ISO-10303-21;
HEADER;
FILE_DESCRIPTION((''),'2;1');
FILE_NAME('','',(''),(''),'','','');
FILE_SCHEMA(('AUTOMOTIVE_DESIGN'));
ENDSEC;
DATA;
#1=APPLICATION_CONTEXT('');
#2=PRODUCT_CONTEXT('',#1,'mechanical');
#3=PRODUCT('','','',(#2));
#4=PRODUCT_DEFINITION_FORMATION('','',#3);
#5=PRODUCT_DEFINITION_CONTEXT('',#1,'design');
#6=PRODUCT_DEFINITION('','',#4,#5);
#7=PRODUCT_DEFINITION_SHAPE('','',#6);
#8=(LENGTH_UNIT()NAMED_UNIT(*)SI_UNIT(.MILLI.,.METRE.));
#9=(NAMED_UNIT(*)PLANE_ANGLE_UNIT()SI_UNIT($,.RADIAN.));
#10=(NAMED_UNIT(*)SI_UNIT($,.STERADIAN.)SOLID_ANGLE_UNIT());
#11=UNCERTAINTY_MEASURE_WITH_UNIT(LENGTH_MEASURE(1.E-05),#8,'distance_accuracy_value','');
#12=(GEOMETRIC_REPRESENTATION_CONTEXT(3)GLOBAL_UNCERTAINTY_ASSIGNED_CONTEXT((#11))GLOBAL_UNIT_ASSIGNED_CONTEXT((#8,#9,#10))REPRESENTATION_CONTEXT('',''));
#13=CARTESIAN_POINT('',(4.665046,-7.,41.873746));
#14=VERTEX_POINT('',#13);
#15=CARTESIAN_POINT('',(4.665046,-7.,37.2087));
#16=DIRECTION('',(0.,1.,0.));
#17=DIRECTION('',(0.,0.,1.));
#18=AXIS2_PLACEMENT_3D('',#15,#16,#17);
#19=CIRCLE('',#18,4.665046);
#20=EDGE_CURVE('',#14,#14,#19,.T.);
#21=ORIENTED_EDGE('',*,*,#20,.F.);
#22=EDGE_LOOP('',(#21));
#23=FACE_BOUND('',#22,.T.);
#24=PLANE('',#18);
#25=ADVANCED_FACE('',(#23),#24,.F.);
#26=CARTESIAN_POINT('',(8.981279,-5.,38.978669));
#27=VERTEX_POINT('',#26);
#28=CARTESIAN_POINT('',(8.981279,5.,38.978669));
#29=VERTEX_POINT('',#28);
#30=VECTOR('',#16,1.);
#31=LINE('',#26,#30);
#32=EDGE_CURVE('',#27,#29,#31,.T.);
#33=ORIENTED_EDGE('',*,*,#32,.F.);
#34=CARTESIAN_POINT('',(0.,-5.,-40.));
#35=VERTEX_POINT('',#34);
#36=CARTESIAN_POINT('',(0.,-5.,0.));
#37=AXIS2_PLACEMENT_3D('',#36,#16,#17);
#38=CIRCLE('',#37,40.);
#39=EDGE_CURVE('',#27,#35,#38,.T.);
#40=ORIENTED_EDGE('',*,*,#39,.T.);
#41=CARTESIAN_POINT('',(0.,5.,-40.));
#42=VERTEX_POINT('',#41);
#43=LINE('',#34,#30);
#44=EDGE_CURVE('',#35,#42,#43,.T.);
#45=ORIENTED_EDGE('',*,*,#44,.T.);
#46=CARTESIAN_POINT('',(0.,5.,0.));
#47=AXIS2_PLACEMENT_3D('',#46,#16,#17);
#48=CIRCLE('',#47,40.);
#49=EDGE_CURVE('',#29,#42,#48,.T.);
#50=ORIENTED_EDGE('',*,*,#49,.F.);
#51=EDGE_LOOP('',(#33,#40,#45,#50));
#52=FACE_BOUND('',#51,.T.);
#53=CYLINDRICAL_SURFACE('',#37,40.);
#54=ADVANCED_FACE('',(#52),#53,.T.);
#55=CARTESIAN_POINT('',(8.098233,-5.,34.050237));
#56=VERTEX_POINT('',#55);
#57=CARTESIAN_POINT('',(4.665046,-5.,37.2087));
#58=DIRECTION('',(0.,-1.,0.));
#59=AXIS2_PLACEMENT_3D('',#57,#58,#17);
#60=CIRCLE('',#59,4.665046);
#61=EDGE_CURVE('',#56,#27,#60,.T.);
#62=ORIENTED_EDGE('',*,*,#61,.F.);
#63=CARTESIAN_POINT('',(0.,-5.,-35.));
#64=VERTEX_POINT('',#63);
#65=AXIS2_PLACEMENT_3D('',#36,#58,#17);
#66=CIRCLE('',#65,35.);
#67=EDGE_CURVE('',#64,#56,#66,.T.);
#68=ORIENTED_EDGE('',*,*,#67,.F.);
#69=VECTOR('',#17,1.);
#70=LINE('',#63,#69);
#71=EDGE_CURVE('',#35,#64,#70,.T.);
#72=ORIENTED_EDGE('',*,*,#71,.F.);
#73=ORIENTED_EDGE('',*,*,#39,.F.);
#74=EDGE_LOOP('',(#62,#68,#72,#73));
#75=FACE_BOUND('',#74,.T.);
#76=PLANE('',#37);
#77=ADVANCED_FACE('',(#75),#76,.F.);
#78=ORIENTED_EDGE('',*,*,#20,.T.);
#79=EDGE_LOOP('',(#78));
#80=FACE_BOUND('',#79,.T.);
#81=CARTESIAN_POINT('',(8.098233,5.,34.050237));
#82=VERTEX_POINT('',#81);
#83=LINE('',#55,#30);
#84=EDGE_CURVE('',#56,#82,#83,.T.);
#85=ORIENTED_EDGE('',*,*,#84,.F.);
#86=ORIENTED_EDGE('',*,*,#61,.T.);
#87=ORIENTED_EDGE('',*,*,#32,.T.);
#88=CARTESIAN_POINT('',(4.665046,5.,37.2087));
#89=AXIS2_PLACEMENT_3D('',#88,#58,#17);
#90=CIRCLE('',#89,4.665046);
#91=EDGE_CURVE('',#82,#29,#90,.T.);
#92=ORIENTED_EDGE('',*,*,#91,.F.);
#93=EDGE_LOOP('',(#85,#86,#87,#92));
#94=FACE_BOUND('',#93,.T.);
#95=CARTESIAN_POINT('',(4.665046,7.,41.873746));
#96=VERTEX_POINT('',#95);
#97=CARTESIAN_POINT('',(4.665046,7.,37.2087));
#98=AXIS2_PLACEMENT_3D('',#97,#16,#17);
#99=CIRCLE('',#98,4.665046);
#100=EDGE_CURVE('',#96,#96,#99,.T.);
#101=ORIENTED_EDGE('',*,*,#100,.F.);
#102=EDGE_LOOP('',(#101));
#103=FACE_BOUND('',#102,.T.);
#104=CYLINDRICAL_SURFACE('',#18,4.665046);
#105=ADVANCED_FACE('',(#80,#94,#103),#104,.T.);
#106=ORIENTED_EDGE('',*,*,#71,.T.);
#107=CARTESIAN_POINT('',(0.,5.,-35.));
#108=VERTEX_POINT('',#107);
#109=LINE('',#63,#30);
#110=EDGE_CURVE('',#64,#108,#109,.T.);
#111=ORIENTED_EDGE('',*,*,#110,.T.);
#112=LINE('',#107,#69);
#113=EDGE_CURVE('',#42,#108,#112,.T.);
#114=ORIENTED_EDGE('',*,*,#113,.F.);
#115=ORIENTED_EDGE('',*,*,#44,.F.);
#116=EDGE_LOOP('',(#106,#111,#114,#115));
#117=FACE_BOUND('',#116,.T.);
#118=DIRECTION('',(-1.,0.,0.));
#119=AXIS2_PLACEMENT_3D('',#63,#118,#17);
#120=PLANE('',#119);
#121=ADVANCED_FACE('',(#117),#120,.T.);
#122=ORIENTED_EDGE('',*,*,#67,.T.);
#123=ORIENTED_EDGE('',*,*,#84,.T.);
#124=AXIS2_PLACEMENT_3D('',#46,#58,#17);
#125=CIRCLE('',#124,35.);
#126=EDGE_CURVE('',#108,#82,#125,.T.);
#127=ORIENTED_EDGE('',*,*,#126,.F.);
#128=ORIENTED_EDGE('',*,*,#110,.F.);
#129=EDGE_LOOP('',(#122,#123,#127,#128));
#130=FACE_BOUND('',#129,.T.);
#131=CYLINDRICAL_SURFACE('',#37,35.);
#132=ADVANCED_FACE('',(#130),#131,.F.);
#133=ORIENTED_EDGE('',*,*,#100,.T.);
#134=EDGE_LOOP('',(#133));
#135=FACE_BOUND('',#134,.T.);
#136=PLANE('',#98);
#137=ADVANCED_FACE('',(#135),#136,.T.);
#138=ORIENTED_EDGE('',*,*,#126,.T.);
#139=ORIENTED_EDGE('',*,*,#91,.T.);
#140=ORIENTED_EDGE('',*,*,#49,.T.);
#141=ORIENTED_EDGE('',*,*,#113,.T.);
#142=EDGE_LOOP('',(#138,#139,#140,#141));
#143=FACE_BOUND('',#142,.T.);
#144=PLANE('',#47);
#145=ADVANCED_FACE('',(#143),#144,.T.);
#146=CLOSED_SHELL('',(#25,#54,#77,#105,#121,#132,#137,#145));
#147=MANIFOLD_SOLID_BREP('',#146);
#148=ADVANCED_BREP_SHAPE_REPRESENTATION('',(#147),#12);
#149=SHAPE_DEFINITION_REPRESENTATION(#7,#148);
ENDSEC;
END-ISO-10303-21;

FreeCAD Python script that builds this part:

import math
import FreeCAD as App
import Part
import Sketcher

V = App.Vector

doc = App.newDocument("Part")
body = doc.addObject("PartDesign::Body", "Body")

# Sketch on XZ plane
sketch1 = body.newObject("Sketcher::SketchObject", "Sketch")
sketch1.AttachmentSupport = (doc.getObject("XZ_Plane"), [""])
sketch1.MapMode = "FlatFace"
sketch1.addGeometry(Part.Circle(V(4.7, 37.2, 0), V(0, 0, 1), 4.7), False)
sketch1.addConstraint(Sketcher.Constraint("Diameter", 0, 9.330093))
sketch1.addConstraint(Sketcher.Constraint("DistanceY", -1, 1, 0, 3, 37.2087))
sketch1.addConstraint(Sketcher.Constraint("DistanceX", -1, 1, 0, 3, 4.665046))
pad1 = body.newObject("PartDesign::Pad", "Pad")
pad1.Profile = sketch1
pad1.Type = "TwoLengths"
pad1.Length = 7
pad1.Length2 = 7
pad1.Reversed = True

# Sketch on XZ plane
sketch2 = body.newObject("Sketcher::SketchObject", "Sketch001")
sketch2.AttachmentSupport = (doc.getObject("XZ_Plane"), [""])
sketch2.MapMode = "FlatFace"
sketch2.addGeometry(Part.LineSegment(V(0, -40, 0), V(0, -35, 0)), False)
sketch2.addGeometry(Part.ArcOfCircle(Part.Circle(V(0, 0, 0), V(0, 0, 1), 35), math.radians(-90), math.radians(77)), False)
sketch2.addGeometry(Part.ArcOfCircle(Part.Circle(V(4.7, 37.2, 0), V(0, 0, 1), 4.7), math.radians(-43), math.radians(22)), False)
sketch2.addGeometry(Part.ArcOfCircle(Part.Circle(V(0, 0, 0), V(0, 0, 1), 40), math.radians(-90), math.radians(77)), False)
sketch2.addConstraint(Sketcher.Constraint("Coincident", 0, 2, 1, 1))
sketch2.addConstraint(Sketcher.Constraint("Coincident", 1, 2, 2, 1))
sketch2.addConstraint(Sketcher.Constraint("Coincident", 2, 2, 3, 2))
sketch2.addConstraint(Sketcher.Constraint("Coincident", 3, 1, 0, 1))
sketch2.addConstraint(Sketcher.Constraint("Vertical", 0))
sketch2.addConstraint(Sketcher.Constraint("Coincident", 1, 3, -1, 1))
sketch2.addConstraint(Sketcher.Constraint("Coincident", 3, 3, -1, 1))
sketch2.addConstraint(Sketcher.Constraint("PointOnObject", 0, 2, -2))
sketch2.addConstraint(Sketcher.Constraint("Radius", 1, 35.0))
sketch2.addConstraint(Sketcher.Constraint("Radius", 3, 40.0))
sketch2.addConstraint(Sketcher.Constraint("Radius", 2, 4.665046))
sketch2.addConstraint(Sketcher.Constraint("DistanceY", -1, 1, 2, 3, 37.2087))
sketch2.addConstraint(Sketcher.Constraint("DistanceX", -1, 1, 2, 2, 8.981279))
pad2 = body.newObject("PartDesign::Pad", "Pad001")
pad2.Profile = sketch2
pad2.Type = "TwoLengths"
pad2.Length = 5
pad2.Length2 = 5
pad2.Reversed = True

doc.recompute()
